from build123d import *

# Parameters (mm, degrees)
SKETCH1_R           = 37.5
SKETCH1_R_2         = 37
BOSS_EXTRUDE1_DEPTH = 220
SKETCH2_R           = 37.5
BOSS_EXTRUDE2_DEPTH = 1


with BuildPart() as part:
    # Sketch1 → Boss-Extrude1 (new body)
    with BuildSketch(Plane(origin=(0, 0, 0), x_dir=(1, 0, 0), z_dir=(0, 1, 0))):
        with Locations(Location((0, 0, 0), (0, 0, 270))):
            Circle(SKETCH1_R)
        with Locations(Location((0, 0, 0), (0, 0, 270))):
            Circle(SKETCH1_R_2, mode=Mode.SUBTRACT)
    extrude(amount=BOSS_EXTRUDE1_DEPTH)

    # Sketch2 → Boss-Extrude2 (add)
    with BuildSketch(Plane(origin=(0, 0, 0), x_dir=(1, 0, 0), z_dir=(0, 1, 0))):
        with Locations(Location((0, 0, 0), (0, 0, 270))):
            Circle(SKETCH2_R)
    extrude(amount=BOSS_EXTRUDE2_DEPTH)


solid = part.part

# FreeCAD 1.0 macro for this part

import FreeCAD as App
import Part
import Sketcher
Q = App.Units.Quantity

doc = App.newDocument("Part")
body = doc.addObject("PartDesign::Body", "Body")

# Sketch on XZ plane
sketch1 = doc.addObject("Sketcher::SketchObject", "Sketch")
body.addObject(sketch1)
sketch1.AttachmentSupport = (doc.XZ_Plane, [""])
sketch1.MapMode = "FlatFace"
sketch1.addGeometry([
    Part.Circle(App.Vector(0, 0, 0), App.Vector(0, 0, 1), 38),
    Part.Circle(App.Vector(0, 0, 0), App.Vector(0, 0, 1), 37),
], False)
sketch1.addConstraint([
    Sketcher.Constraint("Coincident", 0, 3, -1, 1),
    Sketcher.Constraint("Coincident", 1, 3, -1, 1),
    Sketcher.Constraint("Diameter", 0, Q("75 mm")),
    Sketcher.Constraint("Diameter", 1, Q("74 mm")),
])
pad1 = doc.addObject("PartDesign::Pad", "Pad")
body.addObject(pad1)
pad1.Profile = sketch1
pad1.Length = 220
pad1.Reversed = True

# Sketch on XZ plane
sketch2 = doc.addObject("Sketcher::SketchObject", "Sketch001")
body.addObject(sketch2)
sketch2.AttachmentSupport = (doc.XZ_Plane, [""])
sketch2.MapMode = "FlatFace"
sketch2.addGeometry(Part.Circle(App.Vector(0, 0, 0), App.Vector(0, 0, 1), 38), False)
sketch2.addConstraint([
    Sketcher.Constraint("Coincident", 0, 3, -1, 1),
    Sketcher.Constraint("Diameter", 0, Q("75 mm")),
])
pad2 = doc.addObject("PartDesign::Pad", "Pad001")
body.addObject(pad2)
pad2.Profile = sketch2
pad2.Length = 1
pad2.Reversed = True

doc.recompute()
